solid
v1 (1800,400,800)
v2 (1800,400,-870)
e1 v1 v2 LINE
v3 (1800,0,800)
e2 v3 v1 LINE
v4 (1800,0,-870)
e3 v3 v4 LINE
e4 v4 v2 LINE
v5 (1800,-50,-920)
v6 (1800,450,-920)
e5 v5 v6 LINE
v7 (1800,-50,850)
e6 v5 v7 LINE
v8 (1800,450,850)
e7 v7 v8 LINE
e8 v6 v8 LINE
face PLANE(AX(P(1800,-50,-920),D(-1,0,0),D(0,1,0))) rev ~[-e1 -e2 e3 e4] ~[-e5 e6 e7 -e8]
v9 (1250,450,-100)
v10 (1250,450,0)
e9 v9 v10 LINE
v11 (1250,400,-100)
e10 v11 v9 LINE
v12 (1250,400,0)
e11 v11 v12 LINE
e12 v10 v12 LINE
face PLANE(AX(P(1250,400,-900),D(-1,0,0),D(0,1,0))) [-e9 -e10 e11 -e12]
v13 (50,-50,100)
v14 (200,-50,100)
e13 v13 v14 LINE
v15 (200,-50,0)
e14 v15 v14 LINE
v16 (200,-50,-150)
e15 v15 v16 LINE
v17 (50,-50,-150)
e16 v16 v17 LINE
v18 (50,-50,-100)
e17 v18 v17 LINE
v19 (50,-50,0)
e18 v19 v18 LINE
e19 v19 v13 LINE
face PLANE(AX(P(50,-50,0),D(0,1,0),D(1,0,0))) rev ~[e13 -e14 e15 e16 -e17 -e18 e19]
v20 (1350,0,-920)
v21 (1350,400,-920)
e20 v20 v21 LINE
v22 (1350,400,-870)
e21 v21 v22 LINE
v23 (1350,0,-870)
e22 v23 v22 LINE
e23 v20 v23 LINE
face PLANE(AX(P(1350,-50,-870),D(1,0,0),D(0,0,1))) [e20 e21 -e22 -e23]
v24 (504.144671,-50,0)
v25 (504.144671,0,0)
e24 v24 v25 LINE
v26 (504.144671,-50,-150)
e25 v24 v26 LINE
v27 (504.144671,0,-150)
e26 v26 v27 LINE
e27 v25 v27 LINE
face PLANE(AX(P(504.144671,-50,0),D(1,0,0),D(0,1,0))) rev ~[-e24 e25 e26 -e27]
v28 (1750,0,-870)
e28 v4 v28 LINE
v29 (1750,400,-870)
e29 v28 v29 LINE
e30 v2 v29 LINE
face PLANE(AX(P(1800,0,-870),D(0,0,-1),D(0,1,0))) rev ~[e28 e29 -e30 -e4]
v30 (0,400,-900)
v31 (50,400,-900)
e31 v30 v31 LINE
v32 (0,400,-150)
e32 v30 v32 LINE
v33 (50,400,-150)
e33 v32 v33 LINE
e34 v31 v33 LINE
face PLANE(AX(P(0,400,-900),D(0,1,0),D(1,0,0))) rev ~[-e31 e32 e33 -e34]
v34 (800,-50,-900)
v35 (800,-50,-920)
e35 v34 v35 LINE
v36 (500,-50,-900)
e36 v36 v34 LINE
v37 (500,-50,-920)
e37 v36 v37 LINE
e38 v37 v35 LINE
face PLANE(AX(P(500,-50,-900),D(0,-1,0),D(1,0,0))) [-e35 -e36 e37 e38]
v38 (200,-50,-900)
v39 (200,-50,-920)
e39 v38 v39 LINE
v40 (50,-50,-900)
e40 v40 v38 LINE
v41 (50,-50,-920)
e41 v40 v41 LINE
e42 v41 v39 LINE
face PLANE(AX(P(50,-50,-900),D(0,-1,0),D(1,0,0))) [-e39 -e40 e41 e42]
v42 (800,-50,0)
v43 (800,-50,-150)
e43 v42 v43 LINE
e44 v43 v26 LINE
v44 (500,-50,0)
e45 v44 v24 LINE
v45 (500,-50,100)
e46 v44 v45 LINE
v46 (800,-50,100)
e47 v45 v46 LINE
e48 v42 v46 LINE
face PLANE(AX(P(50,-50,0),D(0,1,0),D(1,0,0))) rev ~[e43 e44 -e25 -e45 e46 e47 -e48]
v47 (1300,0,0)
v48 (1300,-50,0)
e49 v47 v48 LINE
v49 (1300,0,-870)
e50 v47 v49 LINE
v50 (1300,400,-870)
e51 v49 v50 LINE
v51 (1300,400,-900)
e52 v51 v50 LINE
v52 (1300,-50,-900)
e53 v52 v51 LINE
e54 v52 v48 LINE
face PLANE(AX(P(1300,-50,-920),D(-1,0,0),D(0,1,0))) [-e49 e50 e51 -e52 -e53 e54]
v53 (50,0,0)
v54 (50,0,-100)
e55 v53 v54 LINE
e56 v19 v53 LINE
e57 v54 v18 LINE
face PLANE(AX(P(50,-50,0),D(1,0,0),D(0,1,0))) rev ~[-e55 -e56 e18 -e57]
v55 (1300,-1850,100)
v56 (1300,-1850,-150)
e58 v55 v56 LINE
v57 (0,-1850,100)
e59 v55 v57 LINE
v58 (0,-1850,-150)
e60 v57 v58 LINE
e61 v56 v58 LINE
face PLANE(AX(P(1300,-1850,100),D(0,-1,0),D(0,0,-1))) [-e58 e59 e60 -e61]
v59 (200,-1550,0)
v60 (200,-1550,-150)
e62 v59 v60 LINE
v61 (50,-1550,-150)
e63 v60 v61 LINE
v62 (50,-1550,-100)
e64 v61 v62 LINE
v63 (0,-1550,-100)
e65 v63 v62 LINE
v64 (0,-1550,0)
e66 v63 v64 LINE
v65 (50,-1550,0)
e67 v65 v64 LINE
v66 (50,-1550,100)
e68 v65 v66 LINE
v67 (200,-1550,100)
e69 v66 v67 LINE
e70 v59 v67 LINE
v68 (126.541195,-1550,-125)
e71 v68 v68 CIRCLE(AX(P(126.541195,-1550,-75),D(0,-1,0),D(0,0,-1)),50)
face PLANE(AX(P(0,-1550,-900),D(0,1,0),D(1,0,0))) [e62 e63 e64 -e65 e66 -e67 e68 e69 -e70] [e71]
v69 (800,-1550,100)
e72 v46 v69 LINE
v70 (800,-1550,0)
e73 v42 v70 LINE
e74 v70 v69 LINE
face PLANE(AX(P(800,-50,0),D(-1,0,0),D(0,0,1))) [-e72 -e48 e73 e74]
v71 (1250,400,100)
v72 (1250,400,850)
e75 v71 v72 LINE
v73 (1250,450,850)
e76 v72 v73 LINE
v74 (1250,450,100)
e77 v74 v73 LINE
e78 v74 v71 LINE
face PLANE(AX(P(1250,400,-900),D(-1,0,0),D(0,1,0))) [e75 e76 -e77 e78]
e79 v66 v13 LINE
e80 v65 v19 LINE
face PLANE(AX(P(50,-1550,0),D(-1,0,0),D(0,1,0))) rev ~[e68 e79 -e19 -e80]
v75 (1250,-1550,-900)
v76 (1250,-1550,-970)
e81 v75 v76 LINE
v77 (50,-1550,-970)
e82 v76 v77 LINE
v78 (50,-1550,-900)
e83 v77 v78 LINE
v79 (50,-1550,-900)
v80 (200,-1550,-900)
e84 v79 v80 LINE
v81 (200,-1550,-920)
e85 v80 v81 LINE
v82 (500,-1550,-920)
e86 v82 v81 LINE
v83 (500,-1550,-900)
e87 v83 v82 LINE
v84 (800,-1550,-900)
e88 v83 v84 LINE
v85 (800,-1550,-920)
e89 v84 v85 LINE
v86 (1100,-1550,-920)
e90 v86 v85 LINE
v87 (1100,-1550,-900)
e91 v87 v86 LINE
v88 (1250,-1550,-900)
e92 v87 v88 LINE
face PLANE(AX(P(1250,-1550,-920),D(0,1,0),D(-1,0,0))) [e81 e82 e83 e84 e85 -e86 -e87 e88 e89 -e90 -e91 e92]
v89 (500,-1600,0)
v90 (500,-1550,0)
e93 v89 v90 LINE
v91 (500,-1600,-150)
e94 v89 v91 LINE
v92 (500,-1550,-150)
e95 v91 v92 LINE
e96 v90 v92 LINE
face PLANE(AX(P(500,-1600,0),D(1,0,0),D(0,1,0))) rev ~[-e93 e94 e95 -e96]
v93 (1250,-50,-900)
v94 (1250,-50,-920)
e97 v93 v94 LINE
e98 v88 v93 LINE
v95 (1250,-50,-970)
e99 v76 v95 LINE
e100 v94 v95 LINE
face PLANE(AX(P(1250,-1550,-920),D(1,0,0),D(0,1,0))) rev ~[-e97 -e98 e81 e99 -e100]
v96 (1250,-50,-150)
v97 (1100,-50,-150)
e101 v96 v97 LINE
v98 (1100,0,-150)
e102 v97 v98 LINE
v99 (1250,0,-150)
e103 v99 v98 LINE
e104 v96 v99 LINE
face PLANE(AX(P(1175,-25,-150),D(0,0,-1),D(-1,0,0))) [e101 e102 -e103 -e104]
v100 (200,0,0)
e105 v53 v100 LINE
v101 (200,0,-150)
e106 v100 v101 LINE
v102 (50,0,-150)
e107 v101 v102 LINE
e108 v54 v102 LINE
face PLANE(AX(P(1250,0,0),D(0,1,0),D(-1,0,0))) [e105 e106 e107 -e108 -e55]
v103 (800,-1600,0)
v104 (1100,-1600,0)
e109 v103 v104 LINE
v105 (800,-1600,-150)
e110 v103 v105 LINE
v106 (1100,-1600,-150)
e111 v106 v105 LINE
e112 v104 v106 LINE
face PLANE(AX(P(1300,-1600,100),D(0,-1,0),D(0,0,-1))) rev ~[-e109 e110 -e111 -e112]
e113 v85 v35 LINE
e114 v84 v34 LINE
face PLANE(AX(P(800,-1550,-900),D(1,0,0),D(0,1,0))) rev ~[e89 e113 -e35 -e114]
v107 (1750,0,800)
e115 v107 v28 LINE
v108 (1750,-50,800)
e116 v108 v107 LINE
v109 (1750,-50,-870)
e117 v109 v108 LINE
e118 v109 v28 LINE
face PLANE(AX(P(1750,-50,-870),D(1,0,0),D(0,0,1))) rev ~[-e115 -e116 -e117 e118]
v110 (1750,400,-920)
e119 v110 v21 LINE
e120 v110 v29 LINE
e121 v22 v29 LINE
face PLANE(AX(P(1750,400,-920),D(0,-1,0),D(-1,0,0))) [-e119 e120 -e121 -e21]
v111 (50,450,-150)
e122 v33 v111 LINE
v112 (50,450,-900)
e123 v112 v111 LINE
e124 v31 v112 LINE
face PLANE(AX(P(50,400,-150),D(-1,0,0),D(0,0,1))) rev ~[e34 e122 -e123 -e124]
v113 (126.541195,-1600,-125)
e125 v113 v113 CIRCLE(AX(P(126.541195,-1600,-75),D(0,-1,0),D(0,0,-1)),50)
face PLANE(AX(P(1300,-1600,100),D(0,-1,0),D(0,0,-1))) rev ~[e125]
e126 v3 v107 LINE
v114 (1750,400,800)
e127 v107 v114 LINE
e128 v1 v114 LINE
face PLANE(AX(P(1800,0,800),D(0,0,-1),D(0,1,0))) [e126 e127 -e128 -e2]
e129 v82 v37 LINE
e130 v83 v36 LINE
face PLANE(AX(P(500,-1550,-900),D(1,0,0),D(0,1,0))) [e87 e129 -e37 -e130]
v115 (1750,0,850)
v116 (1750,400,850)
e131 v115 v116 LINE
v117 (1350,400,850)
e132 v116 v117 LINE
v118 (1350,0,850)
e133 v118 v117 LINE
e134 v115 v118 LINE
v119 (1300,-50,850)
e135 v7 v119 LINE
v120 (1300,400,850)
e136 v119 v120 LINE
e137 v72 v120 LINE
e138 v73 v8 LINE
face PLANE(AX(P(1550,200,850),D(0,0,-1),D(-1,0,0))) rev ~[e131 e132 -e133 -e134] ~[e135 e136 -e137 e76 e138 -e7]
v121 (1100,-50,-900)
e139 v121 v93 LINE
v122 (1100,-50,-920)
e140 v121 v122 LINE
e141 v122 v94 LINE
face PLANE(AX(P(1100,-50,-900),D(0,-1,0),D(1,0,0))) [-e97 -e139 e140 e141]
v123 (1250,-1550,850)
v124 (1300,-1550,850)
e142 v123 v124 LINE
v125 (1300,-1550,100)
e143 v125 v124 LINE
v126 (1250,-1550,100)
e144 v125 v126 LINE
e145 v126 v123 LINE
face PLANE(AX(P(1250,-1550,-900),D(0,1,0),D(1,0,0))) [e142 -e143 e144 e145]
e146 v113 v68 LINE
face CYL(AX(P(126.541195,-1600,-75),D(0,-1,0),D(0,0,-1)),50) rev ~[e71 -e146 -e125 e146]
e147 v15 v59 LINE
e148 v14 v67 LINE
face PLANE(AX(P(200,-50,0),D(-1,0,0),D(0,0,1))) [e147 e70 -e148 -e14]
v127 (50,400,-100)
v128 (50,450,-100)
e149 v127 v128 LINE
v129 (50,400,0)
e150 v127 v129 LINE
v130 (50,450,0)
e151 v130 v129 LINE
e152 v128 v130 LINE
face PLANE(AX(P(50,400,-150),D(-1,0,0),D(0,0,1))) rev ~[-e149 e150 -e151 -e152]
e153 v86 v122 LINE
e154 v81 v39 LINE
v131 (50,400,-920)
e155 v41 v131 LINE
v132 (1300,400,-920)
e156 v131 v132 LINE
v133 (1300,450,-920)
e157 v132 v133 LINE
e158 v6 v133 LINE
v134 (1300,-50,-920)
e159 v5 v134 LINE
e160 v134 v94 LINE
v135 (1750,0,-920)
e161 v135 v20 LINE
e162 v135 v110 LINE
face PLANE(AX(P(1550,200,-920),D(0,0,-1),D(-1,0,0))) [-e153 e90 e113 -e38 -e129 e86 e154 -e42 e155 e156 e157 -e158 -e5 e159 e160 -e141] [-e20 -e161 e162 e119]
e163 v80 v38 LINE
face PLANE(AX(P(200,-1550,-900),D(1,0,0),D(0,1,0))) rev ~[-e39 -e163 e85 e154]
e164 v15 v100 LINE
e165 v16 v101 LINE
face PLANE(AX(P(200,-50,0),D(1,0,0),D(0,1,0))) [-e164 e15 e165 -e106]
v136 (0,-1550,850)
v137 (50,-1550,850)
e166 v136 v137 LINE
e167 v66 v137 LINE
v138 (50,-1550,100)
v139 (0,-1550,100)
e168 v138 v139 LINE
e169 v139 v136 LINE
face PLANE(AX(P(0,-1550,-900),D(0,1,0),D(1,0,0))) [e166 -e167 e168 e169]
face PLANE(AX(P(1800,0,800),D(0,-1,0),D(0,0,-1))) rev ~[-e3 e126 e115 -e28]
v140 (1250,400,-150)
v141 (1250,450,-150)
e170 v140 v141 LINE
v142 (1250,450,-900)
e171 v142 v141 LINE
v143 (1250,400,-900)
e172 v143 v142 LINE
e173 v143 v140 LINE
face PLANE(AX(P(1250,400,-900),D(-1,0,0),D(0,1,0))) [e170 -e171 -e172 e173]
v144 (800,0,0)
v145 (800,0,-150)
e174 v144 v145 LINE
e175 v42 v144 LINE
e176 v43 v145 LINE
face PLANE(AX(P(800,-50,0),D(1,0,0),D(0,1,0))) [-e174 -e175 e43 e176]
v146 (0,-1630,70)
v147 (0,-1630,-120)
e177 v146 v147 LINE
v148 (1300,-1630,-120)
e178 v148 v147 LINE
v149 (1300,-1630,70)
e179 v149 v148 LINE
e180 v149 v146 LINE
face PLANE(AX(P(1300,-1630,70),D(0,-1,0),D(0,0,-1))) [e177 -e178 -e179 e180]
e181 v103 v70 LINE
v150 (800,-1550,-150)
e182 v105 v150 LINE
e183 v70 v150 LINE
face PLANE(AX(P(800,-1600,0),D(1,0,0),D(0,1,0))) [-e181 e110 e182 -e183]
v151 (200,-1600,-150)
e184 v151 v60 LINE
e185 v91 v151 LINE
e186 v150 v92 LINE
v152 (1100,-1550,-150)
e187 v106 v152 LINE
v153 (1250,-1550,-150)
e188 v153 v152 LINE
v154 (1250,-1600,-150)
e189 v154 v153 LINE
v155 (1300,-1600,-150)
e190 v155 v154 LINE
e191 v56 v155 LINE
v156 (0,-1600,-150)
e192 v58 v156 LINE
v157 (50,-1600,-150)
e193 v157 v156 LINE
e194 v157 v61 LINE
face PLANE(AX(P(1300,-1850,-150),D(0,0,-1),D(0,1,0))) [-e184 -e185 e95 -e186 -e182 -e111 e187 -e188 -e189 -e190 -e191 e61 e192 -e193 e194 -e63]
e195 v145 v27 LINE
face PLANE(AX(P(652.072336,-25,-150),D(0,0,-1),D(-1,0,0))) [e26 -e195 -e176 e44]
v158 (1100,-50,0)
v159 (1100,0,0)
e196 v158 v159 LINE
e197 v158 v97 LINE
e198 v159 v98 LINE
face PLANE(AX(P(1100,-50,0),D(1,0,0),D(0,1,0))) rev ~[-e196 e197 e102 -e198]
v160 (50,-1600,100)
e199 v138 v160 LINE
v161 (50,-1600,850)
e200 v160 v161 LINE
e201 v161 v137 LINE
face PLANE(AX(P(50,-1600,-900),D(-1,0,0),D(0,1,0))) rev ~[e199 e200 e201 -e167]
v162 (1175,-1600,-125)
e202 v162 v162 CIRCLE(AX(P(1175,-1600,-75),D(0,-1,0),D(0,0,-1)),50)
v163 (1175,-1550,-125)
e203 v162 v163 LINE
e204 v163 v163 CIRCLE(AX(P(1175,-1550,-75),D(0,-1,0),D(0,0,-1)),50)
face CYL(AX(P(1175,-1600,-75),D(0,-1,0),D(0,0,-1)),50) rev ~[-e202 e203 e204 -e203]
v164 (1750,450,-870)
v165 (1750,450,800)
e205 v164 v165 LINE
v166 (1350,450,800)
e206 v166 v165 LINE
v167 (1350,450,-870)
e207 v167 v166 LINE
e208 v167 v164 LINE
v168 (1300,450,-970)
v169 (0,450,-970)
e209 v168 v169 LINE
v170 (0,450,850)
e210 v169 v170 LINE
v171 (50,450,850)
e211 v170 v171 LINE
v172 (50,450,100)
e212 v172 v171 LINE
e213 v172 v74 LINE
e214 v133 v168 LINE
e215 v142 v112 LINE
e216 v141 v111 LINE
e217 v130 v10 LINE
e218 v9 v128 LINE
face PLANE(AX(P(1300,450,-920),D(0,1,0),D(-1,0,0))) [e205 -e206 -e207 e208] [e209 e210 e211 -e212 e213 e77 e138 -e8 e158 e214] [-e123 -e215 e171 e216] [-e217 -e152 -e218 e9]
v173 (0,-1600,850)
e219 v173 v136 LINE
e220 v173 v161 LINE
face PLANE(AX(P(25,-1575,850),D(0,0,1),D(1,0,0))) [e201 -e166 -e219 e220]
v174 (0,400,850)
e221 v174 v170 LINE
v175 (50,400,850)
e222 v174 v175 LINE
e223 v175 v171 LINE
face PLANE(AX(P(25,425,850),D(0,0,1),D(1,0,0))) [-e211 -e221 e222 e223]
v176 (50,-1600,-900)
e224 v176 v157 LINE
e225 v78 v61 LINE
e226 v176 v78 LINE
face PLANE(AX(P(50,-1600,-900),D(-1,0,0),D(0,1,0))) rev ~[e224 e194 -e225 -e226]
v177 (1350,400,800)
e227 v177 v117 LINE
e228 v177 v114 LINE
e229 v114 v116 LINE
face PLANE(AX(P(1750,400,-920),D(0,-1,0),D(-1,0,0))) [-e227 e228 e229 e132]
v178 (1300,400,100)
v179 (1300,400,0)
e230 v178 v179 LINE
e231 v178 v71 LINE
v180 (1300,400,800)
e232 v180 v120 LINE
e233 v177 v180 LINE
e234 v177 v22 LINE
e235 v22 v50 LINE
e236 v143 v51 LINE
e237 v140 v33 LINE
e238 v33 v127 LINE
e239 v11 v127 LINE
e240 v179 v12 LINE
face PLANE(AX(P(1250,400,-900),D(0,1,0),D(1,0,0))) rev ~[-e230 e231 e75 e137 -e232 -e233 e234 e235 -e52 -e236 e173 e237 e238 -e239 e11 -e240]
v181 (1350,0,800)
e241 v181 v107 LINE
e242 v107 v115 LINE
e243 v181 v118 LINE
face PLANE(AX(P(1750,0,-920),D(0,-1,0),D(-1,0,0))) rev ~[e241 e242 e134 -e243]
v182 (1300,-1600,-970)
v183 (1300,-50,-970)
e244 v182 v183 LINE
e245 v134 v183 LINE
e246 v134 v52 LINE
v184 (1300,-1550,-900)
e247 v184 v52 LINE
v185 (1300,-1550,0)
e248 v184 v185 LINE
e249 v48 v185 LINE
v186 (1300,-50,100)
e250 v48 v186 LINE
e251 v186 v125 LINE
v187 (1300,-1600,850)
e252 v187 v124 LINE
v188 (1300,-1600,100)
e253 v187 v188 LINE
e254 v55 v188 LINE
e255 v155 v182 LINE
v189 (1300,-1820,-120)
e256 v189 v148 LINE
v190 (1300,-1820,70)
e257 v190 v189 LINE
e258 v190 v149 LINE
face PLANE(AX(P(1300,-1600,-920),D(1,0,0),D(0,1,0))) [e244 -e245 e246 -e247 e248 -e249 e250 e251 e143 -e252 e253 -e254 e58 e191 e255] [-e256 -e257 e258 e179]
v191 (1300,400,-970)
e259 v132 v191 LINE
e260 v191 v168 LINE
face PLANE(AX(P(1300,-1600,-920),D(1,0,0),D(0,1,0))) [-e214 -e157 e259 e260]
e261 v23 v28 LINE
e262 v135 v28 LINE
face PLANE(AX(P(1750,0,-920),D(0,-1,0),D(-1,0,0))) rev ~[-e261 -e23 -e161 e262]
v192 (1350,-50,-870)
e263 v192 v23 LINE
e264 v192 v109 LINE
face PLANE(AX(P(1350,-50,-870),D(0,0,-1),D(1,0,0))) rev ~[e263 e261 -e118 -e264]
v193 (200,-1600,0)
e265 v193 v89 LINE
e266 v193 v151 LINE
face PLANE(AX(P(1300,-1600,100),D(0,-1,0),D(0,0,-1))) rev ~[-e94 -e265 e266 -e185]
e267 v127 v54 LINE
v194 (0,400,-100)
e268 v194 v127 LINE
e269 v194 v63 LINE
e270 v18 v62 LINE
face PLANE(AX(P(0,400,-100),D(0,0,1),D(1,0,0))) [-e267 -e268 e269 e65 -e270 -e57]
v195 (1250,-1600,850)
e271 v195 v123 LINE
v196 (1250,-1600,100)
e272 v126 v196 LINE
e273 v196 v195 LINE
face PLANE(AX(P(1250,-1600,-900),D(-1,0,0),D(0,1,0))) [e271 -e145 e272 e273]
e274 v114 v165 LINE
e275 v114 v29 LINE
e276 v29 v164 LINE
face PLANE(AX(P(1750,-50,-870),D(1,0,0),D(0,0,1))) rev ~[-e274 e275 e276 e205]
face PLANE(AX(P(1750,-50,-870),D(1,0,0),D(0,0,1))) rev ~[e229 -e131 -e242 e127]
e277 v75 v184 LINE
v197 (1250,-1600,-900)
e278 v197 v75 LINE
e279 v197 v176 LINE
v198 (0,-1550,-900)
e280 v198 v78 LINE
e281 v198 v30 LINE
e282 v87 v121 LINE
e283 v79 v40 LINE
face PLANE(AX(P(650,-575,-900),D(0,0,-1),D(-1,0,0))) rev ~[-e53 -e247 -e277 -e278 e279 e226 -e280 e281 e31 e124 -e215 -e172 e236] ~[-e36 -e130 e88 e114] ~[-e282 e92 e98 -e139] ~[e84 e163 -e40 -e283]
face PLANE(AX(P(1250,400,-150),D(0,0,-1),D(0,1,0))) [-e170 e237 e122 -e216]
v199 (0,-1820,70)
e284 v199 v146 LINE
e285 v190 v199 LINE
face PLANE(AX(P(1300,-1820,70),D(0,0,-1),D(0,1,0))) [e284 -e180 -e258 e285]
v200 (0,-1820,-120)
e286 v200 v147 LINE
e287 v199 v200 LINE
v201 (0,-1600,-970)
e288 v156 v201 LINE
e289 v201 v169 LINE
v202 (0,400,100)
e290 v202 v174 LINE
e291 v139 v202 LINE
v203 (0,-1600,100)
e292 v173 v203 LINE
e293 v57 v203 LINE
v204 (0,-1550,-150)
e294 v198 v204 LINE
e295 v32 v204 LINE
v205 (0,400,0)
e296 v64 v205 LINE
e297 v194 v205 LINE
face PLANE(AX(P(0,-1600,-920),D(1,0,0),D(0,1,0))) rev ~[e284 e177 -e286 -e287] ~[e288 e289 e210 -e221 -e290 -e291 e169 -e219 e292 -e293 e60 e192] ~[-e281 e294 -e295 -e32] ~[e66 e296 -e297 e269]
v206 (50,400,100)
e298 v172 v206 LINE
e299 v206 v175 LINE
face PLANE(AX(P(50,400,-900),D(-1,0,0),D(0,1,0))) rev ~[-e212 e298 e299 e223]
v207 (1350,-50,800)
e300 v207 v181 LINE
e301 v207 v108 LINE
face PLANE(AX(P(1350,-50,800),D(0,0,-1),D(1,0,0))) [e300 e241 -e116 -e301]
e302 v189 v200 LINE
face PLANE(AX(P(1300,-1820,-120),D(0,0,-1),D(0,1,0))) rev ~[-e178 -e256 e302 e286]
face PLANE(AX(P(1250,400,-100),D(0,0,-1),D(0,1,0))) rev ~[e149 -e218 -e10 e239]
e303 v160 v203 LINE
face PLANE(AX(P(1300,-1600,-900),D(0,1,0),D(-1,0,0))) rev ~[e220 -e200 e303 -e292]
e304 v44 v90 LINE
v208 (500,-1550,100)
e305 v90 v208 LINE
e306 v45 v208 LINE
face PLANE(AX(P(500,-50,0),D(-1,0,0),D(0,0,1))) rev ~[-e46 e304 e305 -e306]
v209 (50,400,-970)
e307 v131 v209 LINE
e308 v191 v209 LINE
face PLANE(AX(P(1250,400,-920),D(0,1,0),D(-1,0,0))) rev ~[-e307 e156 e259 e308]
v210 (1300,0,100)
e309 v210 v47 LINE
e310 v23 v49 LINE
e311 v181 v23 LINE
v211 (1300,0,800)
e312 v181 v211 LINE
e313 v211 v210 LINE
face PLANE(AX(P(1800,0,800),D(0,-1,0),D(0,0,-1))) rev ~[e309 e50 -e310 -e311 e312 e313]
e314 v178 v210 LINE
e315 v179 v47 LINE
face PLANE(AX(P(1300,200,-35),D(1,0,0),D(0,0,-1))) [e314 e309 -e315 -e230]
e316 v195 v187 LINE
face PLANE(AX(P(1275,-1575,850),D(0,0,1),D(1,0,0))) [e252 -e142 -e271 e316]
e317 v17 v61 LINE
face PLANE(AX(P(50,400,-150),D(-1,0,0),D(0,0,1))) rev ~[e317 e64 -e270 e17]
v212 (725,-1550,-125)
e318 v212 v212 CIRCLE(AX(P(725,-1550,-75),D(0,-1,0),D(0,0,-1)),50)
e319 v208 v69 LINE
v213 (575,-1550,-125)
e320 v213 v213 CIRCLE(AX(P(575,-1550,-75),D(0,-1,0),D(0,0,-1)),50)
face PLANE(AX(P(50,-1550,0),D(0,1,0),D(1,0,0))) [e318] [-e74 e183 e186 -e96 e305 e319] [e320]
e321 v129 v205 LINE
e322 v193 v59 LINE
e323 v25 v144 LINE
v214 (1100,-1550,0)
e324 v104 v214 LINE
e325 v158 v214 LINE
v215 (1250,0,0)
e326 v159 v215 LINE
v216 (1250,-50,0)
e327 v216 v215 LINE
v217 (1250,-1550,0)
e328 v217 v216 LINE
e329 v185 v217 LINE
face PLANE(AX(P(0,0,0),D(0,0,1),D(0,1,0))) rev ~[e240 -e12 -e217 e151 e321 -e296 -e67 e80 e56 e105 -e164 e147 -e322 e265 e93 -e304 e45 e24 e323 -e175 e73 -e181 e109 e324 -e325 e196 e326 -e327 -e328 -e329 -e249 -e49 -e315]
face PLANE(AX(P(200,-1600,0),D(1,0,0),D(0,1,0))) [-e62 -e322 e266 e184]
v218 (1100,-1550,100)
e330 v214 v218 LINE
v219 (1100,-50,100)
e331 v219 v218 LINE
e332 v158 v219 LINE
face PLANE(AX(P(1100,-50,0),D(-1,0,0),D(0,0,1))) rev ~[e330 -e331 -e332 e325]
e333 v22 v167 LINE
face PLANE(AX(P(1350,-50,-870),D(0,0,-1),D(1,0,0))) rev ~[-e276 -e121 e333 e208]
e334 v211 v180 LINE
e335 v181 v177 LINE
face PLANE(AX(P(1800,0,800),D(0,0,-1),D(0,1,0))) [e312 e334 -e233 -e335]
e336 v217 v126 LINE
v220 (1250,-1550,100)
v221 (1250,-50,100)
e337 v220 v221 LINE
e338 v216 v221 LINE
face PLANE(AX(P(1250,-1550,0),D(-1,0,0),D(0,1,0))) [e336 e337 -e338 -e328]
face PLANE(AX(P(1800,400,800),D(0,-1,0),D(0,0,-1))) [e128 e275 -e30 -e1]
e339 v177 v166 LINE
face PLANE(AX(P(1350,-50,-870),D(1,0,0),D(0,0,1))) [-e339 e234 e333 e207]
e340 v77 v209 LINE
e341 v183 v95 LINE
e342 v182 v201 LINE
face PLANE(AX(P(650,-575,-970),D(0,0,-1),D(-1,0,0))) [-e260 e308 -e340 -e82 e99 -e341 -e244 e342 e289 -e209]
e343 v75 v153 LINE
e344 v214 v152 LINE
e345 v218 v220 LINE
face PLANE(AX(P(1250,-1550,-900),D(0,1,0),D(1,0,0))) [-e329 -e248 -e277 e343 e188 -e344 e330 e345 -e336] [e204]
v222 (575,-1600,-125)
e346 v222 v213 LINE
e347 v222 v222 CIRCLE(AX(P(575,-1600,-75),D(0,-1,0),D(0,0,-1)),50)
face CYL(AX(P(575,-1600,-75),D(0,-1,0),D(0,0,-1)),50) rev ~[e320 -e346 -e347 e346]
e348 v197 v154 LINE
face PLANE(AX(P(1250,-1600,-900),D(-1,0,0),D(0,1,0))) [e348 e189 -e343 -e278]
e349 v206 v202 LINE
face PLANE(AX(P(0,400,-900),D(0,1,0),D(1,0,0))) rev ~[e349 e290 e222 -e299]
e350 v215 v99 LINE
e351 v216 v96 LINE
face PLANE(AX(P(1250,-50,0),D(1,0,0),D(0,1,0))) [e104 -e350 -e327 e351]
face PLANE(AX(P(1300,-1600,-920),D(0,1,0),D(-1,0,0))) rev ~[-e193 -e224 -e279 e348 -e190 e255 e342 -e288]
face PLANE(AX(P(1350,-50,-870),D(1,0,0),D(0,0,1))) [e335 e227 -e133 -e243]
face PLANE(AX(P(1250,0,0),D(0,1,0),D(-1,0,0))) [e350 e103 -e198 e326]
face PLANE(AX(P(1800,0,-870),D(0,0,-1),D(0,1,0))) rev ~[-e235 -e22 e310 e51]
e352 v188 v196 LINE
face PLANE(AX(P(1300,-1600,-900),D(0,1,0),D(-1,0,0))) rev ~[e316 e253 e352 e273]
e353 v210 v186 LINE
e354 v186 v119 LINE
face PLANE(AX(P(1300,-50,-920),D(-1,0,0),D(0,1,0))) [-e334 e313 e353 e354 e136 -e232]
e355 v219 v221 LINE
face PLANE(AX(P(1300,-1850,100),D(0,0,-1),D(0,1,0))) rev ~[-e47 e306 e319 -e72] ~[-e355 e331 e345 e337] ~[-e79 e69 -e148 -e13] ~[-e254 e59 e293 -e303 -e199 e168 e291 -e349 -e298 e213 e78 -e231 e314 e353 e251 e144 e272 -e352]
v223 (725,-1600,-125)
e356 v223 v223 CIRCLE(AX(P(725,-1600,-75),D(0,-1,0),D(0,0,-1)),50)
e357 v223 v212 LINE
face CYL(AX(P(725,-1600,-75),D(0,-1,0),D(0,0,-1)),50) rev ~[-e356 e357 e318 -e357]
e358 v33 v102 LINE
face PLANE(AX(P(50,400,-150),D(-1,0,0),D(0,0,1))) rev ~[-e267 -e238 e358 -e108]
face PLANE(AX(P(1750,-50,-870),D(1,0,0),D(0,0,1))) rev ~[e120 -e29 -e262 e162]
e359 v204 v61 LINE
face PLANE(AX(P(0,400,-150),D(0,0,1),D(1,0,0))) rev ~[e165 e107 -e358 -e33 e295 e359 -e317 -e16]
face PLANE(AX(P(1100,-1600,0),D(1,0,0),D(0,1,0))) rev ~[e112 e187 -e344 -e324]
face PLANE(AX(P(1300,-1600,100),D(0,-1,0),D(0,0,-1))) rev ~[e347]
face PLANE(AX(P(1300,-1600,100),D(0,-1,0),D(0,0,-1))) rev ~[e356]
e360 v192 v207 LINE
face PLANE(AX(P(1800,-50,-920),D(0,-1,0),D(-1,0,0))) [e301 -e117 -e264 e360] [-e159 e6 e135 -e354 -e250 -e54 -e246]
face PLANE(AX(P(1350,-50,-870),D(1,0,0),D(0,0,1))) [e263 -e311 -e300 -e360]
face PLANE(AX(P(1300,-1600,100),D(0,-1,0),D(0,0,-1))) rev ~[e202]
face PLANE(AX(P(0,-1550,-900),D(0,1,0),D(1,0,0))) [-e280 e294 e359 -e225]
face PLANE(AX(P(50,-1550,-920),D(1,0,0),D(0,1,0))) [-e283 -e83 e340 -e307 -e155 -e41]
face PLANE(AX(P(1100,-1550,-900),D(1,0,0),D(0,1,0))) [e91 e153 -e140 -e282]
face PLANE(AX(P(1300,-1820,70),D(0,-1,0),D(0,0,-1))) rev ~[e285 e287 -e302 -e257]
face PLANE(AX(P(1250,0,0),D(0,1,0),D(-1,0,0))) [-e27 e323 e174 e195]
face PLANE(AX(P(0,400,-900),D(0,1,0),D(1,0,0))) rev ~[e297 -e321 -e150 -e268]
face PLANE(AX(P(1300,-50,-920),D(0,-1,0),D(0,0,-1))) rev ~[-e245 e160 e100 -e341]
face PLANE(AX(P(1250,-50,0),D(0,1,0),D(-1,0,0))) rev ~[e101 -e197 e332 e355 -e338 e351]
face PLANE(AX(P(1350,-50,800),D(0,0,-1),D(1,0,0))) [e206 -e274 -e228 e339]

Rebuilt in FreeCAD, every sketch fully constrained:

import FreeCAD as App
import Part
import Sketcher
Q = App.Units.Quantity


def add_polygon(sketch, points):
    """Adds a closed chain of lines whose ends are joined by coincident constraints."""
    first, n = sketch.GeometryCount, len(points)
    for a, b in zip(points, points[1:] + points[:1]):
        sketch.addGeometry(Part.LineSegment(App.Vector(*a, 0), App.Vector(*b, 0)), False)
    for i in range(n):
        sketch.addConstraint(Sketcher.Constraint("Coincident", first + i, 2, first + (i + 1) % n, 1))

doc = App.newDocument("Part")
body = doc.addObject("PartDesign::Body", "Body")

# Sketch on XY plane
sketch1 = body.newObject("Sketcher::SketchObject", "Sketch")
sketch1.AttachmentSupport = (doc.getObject("XY_Plane"), [""])
sketch1.MapMode = "FlatFace"
add_polygon(sketch1, [(0, 0), (0, -1600), (1300, -1600), (1300, 0)])  # lines 0-3
add_polygon(sketch1, [(1250, -1550), (50, -1550), (50, -50), (1250, -50)])  # lines 4-7
sketch1.addConstraint([
    Sketcher.Constraint("Vertical", 0),
    Sketcher.Constraint("Horizontal", 1),
    Sketcher.Constraint("Vertical", 2),
    Sketcher.Constraint("Horizontal", 3),
    Sketcher.Constraint("Horizontal", 4),
    Sketcher.Constraint("Vertical", 5),
    Sketcher.Constraint("Horizontal", 6),
    Sketcher.Constraint("Vertical", 7),
    Sketcher.Constraint("Coincident", 3, 2, -1, 1),
    Sketcher.Constraint("DistanceX", 1, 1, 1, 2, Q("1300 mm")),
    Sketcher.Constraint("DistanceX", 4, 2, 4, 1, Q("1200 mm")),
    Sketcher.Constraint("DistanceY", 0, 2, 0, 1, Q("1600 mm")),
    Sketcher.Constraint("DistanceY", 5, 1, 5, 2, Q("1500 mm")),
    Sketcher.Constraint("DistanceX", -1, 1, 4, 2, Q("50 mm")),
    Sketcher.Constraint("DistanceY", 4, 2, -1, 1, Q("1550 mm")),
])
pad1 = body.newObject("PartDesign::Pad", "Pad")
pad1.Profile = sketch1
pad1.Length = 100

# Sketch on XZ plane
sketch2 = body.newObject("Sketcher::SketchObject", "Sketch001")
sketch2.AttachmentSupport = (doc.getObject("XZ_Plane"), [""])
sketch2.MapMode = "FlatFace"
sketch2.AttachmentOffset = App.Placement(App.Vector(0, 0, 50), App.Rotation())
add_polygon(sketch2, [(200, 100), (200, 0), (500, 0), (500, 100)])  # lines 0-3
add_polygon(sketch2, [(800, 100), (800, 0), (1100, 0), (1100, 100)])  # lines 4-7
sketch2.addConstraint([
    Sketcher.Constraint("Vertical", 0),
    Sketcher.Constraint("Horizontal", 1),
    Sketcher.Constraint("Vertical", 2),
    Sketcher.Constraint("Horizontal", 3),
    Sketcher.Constraint("Vertical", 4),
    Sketcher.Constraint("Horizontal", 5),
    Sketcher.Constraint("Vertical", 6),
    Sketcher.Constraint("Horizontal", 7),
    Sketcher.Constraint("PointOnObject", 0, 2, -1),
    Sketcher.Constraint("PointOnObject", 4, 2, -1),
    Sketcher.Constraint("Horizontal", 3, 2, 6, 2),
    Sketcher.Constraint("Equal", 3, 5),
    Sketcher.Constraint("DistanceX", 1, 1, 1, 2, Q("300 mm")),
    Sketcher.Constraint("DistanceY", 0, 2, 0, 1, Q("100 mm")),
    Sketcher.Constraint("DistanceX", -1, 1, 0, 2, Q("200 mm")),
    Sketcher.Constraint("DistanceX", -1, 1, 4, 2, Q("800 mm")),
])
pad2 = body.newObject("PartDesign::Pad", "Pad001")
pad2.Profile = sketch2
pad2.Length = 1500

# Sketch on XY plane
sketch3 = body.newObject("Sketcher::SketchObject", "Sketch002")
sketch3.AttachmentSupport = (doc.getObject("XY_Plane"), [""])
sketch3.MapMode = "FlatFace"
add_polygon(sketch3, [(1250, 0), (1250, -50), (1100, -50), (1100, 0)])  # lines 0-3
add_polygon(sketch3, [(800, 0), (800, -50), (504, -50), (504, 0)])  # lines 4-7
add_polygon(sketch3, [(200, 0), (200, -50), (50, -50), (50, 0)])  # lines 8-11
add_polygon(sketch3, [(1250, -1550), (1250, -1600), (1100, -1600), (1100, -1550)])  # lines 12-15
add_polygon(sketch3, [(800, -1550), (800, -1600), (500, -1600), (500, -1550)])  # lines 16-19
add_polygon(sketch3, [(200, -1550), (200, -1600), (50, -1600), (50, -1550)])  # lines 20-23
sketch3.addConstraint([
    Sketcher.Constraint("Vertical", 0),
    Sketcher.Constraint("Horizontal", 1),
    Sketcher.Constraint("Vertical", 2),
    Sketcher.Constraint("Horizontal", 3),
    Sketcher.Constraint("Vertical", 4),
    Sketcher.Constraint("Horizontal", 5),
    Sketcher.Constraint("Vertical", 6),
    Sketcher.Constraint("Horizontal", 7),
    Sketcher.Constraint("Vertical", 8),
    Sketcher.Constraint("Horizontal", 9),
    Sketcher.Constraint("Vertical", 10),
    Sketcher.Constraint("Horizontal", 11),
    Sketcher.Constraint("Vertical", 12),
    Sketcher.Constraint("Horizontal", 13),
    Sketcher.Constraint("Vertical", 14),
    Sketcher.Constraint("Horizontal", 15),
    Sketcher.Constraint("Vertical", 16),
    Sketcher.Constraint("Horizontal", 17),
    Sketcher.Constraint("Vertical", 18),
    Sketcher.Constraint("Horizontal", 19),
    Sketcher.Constraint("Vertical", 20),
    Sketcher.Constraint("Horizontal", 21),
    Sketcher.Constraint("Vertical", 22),
    Sketcher.Constraint("Horizontal", 23),
    Sketcher.Constraint("PointOnObject", 2, 2, -1),
    Sketcher.Constraint("PointOnObject", 6, 2, -1),
    Sketcher.Constraint("PointOnObject", 10, 2, -1),
    Sketcher.Constraint("Horizontal", 1, 2, 4, 2),
    Sketcher.Constraint("Horizontal", 5, 2, 8, 2),
    Sketcher.Constraint("Horizontal", 13, 2, 16, 2),
    Sketcher.Constraint("Horizontal", 15, 2, 18, 2),
    Sketcher.Constraint("Horizontal", 17, 2, 20, 2),
    Sketcher.Constraint("Horizontal", 19, 2, 22, 2),
    Sketcher.Constraint("Vertical", 3, 2, 12, 2),
    Sketcher.Constraint("Vertical", 2, 2, 13, 2),
    Sketcher.Constraint("Vertical", 7, 2, 16, 2),
    Sketcher.Constraint("Vertical", 11, 2, 20, 2),
    Sketcher.Constraint("Vertical", 10, 2, 21, 2),
    Sketcher.Constraint("Equal", 3, 9),
    Sketcher.Constraint("Equal", 10, 12),
    Sketcher.Constraint("DistanceX", 1, 2, 1, 1, Q("150 mm")),
    Sketcher.Constraint("DistanceX", 17, 2, 17, 1, Q("300 mm")),
    Sketcher.Constraint("DistanceY", 0, 2, 0, 1, Q("50 mm")),
    Sketcher.Constraint("DistanceX", -1, 1, 0, 2, Q("1250 mm")),
    Sketcher.Constraint("DistanceX", -1, 1, 4, 2, Q("800 mm")),
    Sketcher.Constraint("DistanceX", -1, 1, 8, 2, Q("200 mm")),
    Sketcher.Constraint("DistanceY", 12, 2, -1, 1, Q("1600 mm")),
    Sketcher.Constraint("DistanceX", 5, 2, 5, 1, Q("295.855329 mm")),
])
pad3 = body.newObject("PartDesign::Pad", "Pad002")
pad3.Profile = sketch3
pad3.Length = 150
pad3.Reversed = True

# Sketch on XZ plane
sketch4 = body.newObject("Sketcher::SketchObject", "Sketch003")
sketch4.AttachmentSupport = (doc.getObject("XZ_Plane"), [""])
sketch4.MapMode = "FlatFace"
sketch4.AttachmentOffset = App.Placement(App.Vector(0, 0, 1600), App.Rotation())
sketch4.addGeometry([
    Part.Circle(App.Vector(1175, -75, 0), App.Vector(0, 0, 1), 50),
    Part.Circle(App.Vector(725, -75, 0), App.Vector(0, 0, 1), 50),
    Part.Circle(App.Vector(575, -75, 0), App.Vector(0, 0, 1), 50),
    Part.Circle(App.Vector(127, -75, 0), App.Vector(0, 0, 1), 50),
], False)
sketch4.addConstraint([
    Sketcher.Constraint("Equal", 0, 1),
    Sketcher.Constraint("Equal", 1, 2),
    Sketcher.Constraint("Equal", 2, 3),
    Sketcher.Constraint("Horizontal", 0, 3, 1, 3),
    Sketcher.Constraint("Horizontal", 1, 3, 2, 3),
    Sketcher.Constraint("Horizontal", 2, 3, 3, 3),
    Sketcher.Constraint("Diameter", 0, Q("100 mm")),
    Sketcher.Constraint("DistanceX", -1, 1, 0, 3, Q("1175 mm")),
    Sketcher.Constraint("DistanceY", 0, 3, -1, 1, Q("75 mm")),
    Sketcher.Constraint("DistanceX", -1, 1, 1, 3, Q("725 mm")),
    Sketcher.Constraint("DistanceX", -1, 1, 2, 3, Q("575 mm")),
    Sketcher.Constraint("DistanceX", -1, 1, 3, 3, Q("126.541195 mm")),
])
pocket1 = body.newObject("PartDesign::Pocket", "Pocket")
pocket1.Profile = sketch4
pocket1.Length = 50

# Sketch on YZ plane
sketch5 = body.newObject("Sketcher::SketchObject", "Sketch004")
sketch5.AttachmentSupport = (doc.getObject("YZ_Plane"), [""])
sketch5.MapMode = "FlatFace"
add_polygon(sketch5, [(450, 0), (0, 0), (0, 100), (450, 100)])  # lines 0-3
sketch5.addConstraint([
    Sketcher.Constraint("Horizontal", 0),
    Sketcher.Constraint("Vertical", 1),
    Sketcher.Constraint("Horizontal", 2),
    Sketcher.Constraint("Vertical", 3),
    Sketcher.Constraint("Coincident", 0, 2, -1, 1),
    Sketcher.Constraint("DistanceX", 0, 2, 0, 1, Q("450 mm")),
    Sketcher.Constraint("DistanceY", 1, 1, 1, 2, Q("100 mm")),
])
pad4 = body.newObject("PartDesign::Pad", "Pad003")
pad4.Profile = sketch5
pad4.Length = 1300

# Sketch on XY plane
sketch6 = body.newObject("Sketcher::SketchObject", "Sketch005")
sketch6.AttachmentSupport = (doc.getObject("XY_Plane"), [""])
sketch6.MapMode = "FlatFace"
sketch6.AttachmentOffset = App.Placement(App.Vector(0, 0, 100), App.Rotation())
add_polygon(sketch6, [(0, 450), (0, 400), (50, 400), (50, 450)])  # lines 0-3
add_polygon(sketch6, [(1250, 450), (1250, 400), (1300, 400), (1300, 450)])  # lines 4-7
add_polygon(sketch6, [(1250, -1550), (1250, -1600), (1300, -1600), (1300, -1550)])  # lines 8-11
add_polygon(sketch6, [(0, -1550), (0, -1600), (50, -1600), (50, -1550)])  # lines 12-15
sketch6.addConstraint([
    Sketcher.Constraint("Vertical", 0),
    Sketcher.Constraint("Horizontal", 1),
    Sketcher.Constraint("Vertical", 2),
    Sketcher.Constraint("Horizontal", 3),
    Sketcher.Constraint("Vertical", 4),
    Sketcher.Constraint("Horizontal", 5),
    Sketcher.Constraint("Vertical", 6),
    Sketcher.Constraint("Horizontal", 7),
    Sketcher.Constraint("Vertical", 8),
    Sketcher.Constraint("Horizontal", 9),
    Sketcher.Constraint("Vertical", 10),
    Sketcher.Constraint("Horizontal", 11),
    Sketcher.Constraint("Vertical", 12),
    Sketcher.Constraint("Horizontal", 13),
    Sketcher.Constraint("Vertical", 14),
    Sketcher.Constraint("Horizontal", 15),
    Sketcher.Constraint("PointOnObject", 0, 2, -2),
    Sketcher.Constraint("PointOnObject", 12, 2, -2),
    Sketcher.Constraint("Horizontal", 1, 2, 4, 2),
    Sketcher.Constraint("Horizontal", 3, 2, 6, 2),
    Sketcher.Constraint("Horizontal", 9, 2, 12, 2),
    Sketcher.Constraint("Horizontal", 11, 2, 14, 2),
    Sketcher.Constraint("Vertical", 7, 2, 8, 2),
    Sketcher.Constraint("Vertical", 6, 2, 9, 2),
    Sketcher.Constraint("Vertical", 2, 2, 13, 2),
    Sketcher.Constraint("Equal", 3, 5),
    Sketcher.Constraint("Equal", 15, 0),
    Sketcher.Constraint("Equal", 6, 8),
    Sketcher.Constraint("DistanceX", 1, 1, 1, 2, Q("50 mm")),
    Sketcher.Constraint("DistanceY", -1, 1, 0, 2, Q("400 mm")),
    Sketcher.Constraint("DistanceX", -1, 1, 4, 2, Q("1250 mm")),
    Sketcher.Constraint("DistanceY", 8, 2, -1, 1, Q("1600 mm")),
])
pad5 = body.newObject("PartDesign::Pad", "Pad004")
pad5.Profile = sketch6
pad5.Type = "TwoLengths"
pad5.Length = 750
pad5.Length2 = 1000

# Sketch on XY plane
sketch7 = body.newObject("Sketcher::SketchObject", "Sketch006")
sketch7.AttachmentSupport = (doc.getObject("XY_Plane"), [""])
sketch7.MapMode = "FlatFace"
sketch7.AttachmentOffset = App.Placement(App.Vector(0, 0, -900), App.Rotation())
add_polygon(sketch7, [(1300, 450), (1300, -1600), (0, -1600), (0, 450)])  # lines 0-3
sketch7.addConstraint([
    Sketcher.Constraint("Vertical", 0),
    Sketcher.Constraint("Horizontal", 1),
    Sketcher.Constraint("Vertical", 2),
    Sketcher.Constraint("Horizontal", 3),
    Sketcher.Constraint("PointOnObject", 1, 2, -2),
    Sketcher.Constraint("DistanceX", 1, 2, 1, 1, Q("1300 mm")),
    Sketcher.Constraint("DistanceY", 0, 2, 0, 1, Q("2050 mm")),
    Sketcher.Constraint("DistanceY", 0, 2, -1, 1, Q("1600 mm")),
])
pad6 = body.newObject("PartDesign::Pad", "Pad005")
pad6.Profile = sketch7
pad6.Length = 20
pad6.Reversed = True

# Sketch on XY plane
sketch8 = body.newObject("Sketcher::SketchObject", "Sketch007")
sketch8.AttachmentSupport = (doc.getObject("XY_Plane"), [""])
sketch8.MapMode = "FlatFace"
sketch8.AttachmentOffset = App.Placement(App.Vector(0, 0, -900), App.Rotation())
add_polygon(sketch8, [(1100, -50), (1100, -1550), (1250, -1550), (1250, -50)])  # lines 0-3
add_polygon(sketch8, [(500, -50), (500, -1550), (800, -1550), (800, -50)])  # lines 4-7
add_polygon(sketch8, [(50, -50), (50, -1550), (200, -1550), (200, -50)])  # lines 8-11
sketch8.addConstraint([
    Sketcher.Constraint("Vertical", 0),
    Sketcher.Constraint("Horizontal", 1),
    Sketcher.Constraint("Vertical", 2),
    Sketcher.Constraint("Horizontal", 3),
    Sketcher.Constraint("Vertical", 4),
    Sketcher.Constraint("Horizontal", 5),
    Sketcher.Constraint("Vertical", 6),
    Sketcher.Constraint("Horizontal", 7),
    Sketcher.Constraint("Vertical", 8),
    Sketcher.Constraint("Horizontal", 9),
    Sketcher.Constraint("Vertical", 10),
    Sketcher.Constraint("Horizontal", 11),
    Sketcher.Constraint("Horizontal", 1, 2, 4, 2),
    Sketcher.Constraint("Horizontal", 3, 2, 6, 2),
    Sketcher.Constraint("Horizontal", 5, 2, 8, 2),
    Sketcher.Constraint("Horizontal", 7, 2, 10, 2),
    Sketcher.Constraint("Equal", 3, 9),
    Sketcher.Constraint("DistanceX", 1, 1, 1, 2, Q("150 mm")),
    Sketcher.Constraint("DistanceX", 5, 1, 5, 2, Q("300 mm")),
    Sketcher.Constraint("DistanceY", 0, 2, 0, 1, Q("1500 mm")),
    Sketcher.Constraint("DistanceX", -1, 1, 0, 2, Q("1100 mm")),
    Sketcher.Constraint("DistanceY", 0, 2, -1, 1, Q("1550 mm")),
    Sketcher.Constraint("DistanceX", -1, 1, 4, 2, Q("500 mm")),
    Sketcher.Constraint("DistanceX", -1, 1, 8, 2, Q("50 mm")),
])
pocket2 = body.newObject("PartDesign::Pocket", "Pocket001")
pocket2.Profile = sketch8
pocket2.Length = 20

# Sketch on XZ plane
sketch9 = body.newObject("Sketcher::SketchObject", "Sketch008")
sketch9.AttachmentSupport = (doc.getObject("XZ_Plane"), [""])
sketch9.MapMode = "FlatFace"
sketch9.AttachmentOffset = App.Placement(App.Vector(0, 0, -400), App.Rotation())
add_polygon(sketch9, [(0, -100), (0, -150), (50, -150), (50, -100)])  # lines 0-3
sketch9.addConstraint([
    Sketcher.Constraint("Vertical", 0),
    Sketcher.Constraint("Horizontal", 1),
    Sketcher.Constraint("Vertical", 2),
    Sketcher.Constraint("Horizontal", 3),
    Sketcher.Constraint("PointOnObject", 0, 2, -2),
    Sketcher.Constraint("Equal", 3, 0),
    Sketcher.Constraint("DistanceX", 1, 1, 1, 2, Q("50 mm")),
    Sketcher.Constraint("DistanceY", 0, 2, -1, 1, Q("150 mm")),
])
pad7 = body.newObject("PartDesign::Pad", "Pad006")
pad7.Profile = sketch9
pad7.Length = 1958

# Sketch on YZ plane
sketch10 = body.newObject("Sketcher::SketchObject", "Sketch009")
sketch10.AttachmentSupport = (doc.getObject("YZ_Plane"), [""])
sketch10.MapMode = "FlatFace"
sketch10.AttachmentOffset = App.Placement(App.Vector(0, 0, 1250), App.Rotation())
add_polygon(sketch10, [(450, -150), (400, -150), (400, -100), (450, -100)])  # lines 0-3
sketch10.addConstraint([
    Sketcher.Constraint("Horizontal", 0),
    Sketcher.Constraint("Vertical", 1),
    Sketcher.Constraint("Horizontal", 2),
    Sketcher.Constraint("Vertical", 3),
    Sketcher.Constraint("Equal", 2, 1),
    Sketcher.Constraint("DistanceX", 0, 2, 0, 1, Q("50 mm")),
    Sketcher.Constraint("DistanceX", -1, 1, 0, 2, Q("400 mm")),
    Sketcher.Constraint("DistanceY", 0, 2, -1, 1, Q("150 mm")),
])
pad8 = body.newObject("PartDesign::Pad", "Pad007")
pad8.Profile = sketch10
pad8.Length = 1200
pad8.Reversed = True

# Sketch on XY plane
sketch11 = body.newObject("Sketcher::SketchObject", "Sketch010")
sketch11.AttachmentSupport = (doc.getObject("XY_Plane"), [""])
sketch11.MapMode = "FlatFace"
sketch11.AttachmentOffset = App.Placement(App.Vector(0, 0, -920), App.Rotation())
add_polygon(sketch11, [(1800, 450), (1800, -50), (1300, -50), (1300, 450)])  # lines 0-3
add_polygon(sketch11, [(1350, 0), (1750, 0), (1750, 400), (1350, 400)])  # lines 4-7
sketch11.addConstraint([
    Sketcher.Constraint("Vertical", 0),
    Sketcher.Constraint("Horizontal", 1),
    Sketcher.Constraint("Vertical", 2),
    Sketcher.Constraint("Horizontal", 3),
    Sketcher.Constraint("Horizontal", 4),
    Sketcher.Constraint("Vertical", 5),
    Sketcher.Constraint("Horizontal", 6),
    Sketcher.Constraint("Vertical", 7),
    Sketcher.Constraint("PointOnObject", 4, 2, -1),
    Sketcher.Constraint("Equal", 3, 0),
    Sketcher.Constraint("Equal", 6, 5),
    Sketcher.Constraint("DistanceX", 1, 2, 1, 1, Q("500 mm")),
    Sketcher.Constraint("DistanceX", 4, 1, 4, 2, Q("400 mm")),
    Sketcher.Constraint("DistanceX", -1, 1, 0, 2, Q("1800 mm")),
    Sketcher.Constraint("DistanceY", 0, 2, -1, 1, Q("50 mm")),
    Sketcher.Constraint("DistanceX", -1, 1, 4, 2, Q("1750 mm")),
])
pad9 = body.newObject("PartDesign::Pad", "Pad008")
pad9.Profile = sketch11
pad9.Length = 1770

# Sketch on XZ plane
sketch12 = body.newObject("Sketcher::SketchObject", "Sketch011")
sketch12.AttachmentSupport = (doc.getObject("XZ_Plane"), [""])
sketch12.MapMode = "FlatFace"
sketch12.AttachmentOffset = App.Placement(App.Vector(0, 0, 50), App.Rotation())
add_polygon(sketch12, [(1350, 800), (1350, -870), (1750, -870), (1750, 800)])  # lines 0-3
sketch12.addConstraint([
    Sketcher.Constraint("Vertical", 0),
    Sketcher.Constraint("Horizontal", 1),
    Sketcher.Constraint("Vertical", 2),
    Sketcher.Constraint("Horizontal", 3),
    Sketcher.Constraint("DistanceX", 1, 1, 1, 2, Q("400 mm")),
    Sketcher.Constraint("DistanceY", 0, 2, 0, 1, Q("1670 mm")),
    Sketcher.Constraint("DistanceX", -1, 1, 0, 2, Q("1350 mm")),
    Sketcher.Constraint("DistanceY", 0, 2, -1, 1, Q("870 mm")),
])
pocket3 = body.newObject("PartDesign::Pocket", "Pocket002")
pocket3.Profile = sketch12
pocket3.Length = 500

# Sketch on YZ plane
sketch13 = body.newObject("Sketcher::SketchObject", "Sketch012")
sketch13.AttachmentSupport = (doc.getObject("YZ_Plane"), [""])
sketch13.MapMode = "FlatFace"
sketch13.AttachmentOffset = App.Placement(App.Vector(0, 0, 1800), App.Rotation())
add_polygon(sketch13, [(400, 800), (0, 800), (0, -870), (400, -870)])  # lines 0-3
sketch13.addConstraint([
    Sketcher.Constraint("Horizontal", 0),
    Sketcher.Constraint("Vertical", 1),
    Sketcher.Constraint("Horizontal", 2),
    Sketcher.Constraint("Vertical", 3),
    Sketcher.Constraint("PointOnObject", 0, 2, -2),
    Sketcher.Constraint("DistanceX", 0, 2, 0, 1, Q("400 mm")),
    Sketcher.Constraint("DistanceY", 1, 2, 1, 1, Q("1670 mm")),
    Sketcher.Constraint("DistanceY", -1, 1, 0, 2, Q("800 mm")),
])
pocket4 = body.newObject("PartDesign::Pocket", "Pocket003")
pocket4.Profile = sketch13
pocket4.Length = 500

# Sketch on YZ plane
sketch14 = body.newObject("Sketcher::SketchObject", "Sketch013")
sketch14.AttachmentSupport = (doc.getObject("YZ_Plane"), [""])
sketch14.MapMode = "FlatFace"
sketch14.AttachmentOffset = App.Placement(App.Vector(0, 0, 1300), App.Rotation())
add_polygon(sketch14, [(-1600, 100), (-1850, 100), (-1850, -150), (-1600, -150)])  # lines 0-3
add_polygon(sketch14, [(-1820, -120), (-1820, 70), (-1630, 70), (-1630, -120)])  # lines 4-7
sketch14.addConstraint([
    Sketcher.Constraint("Horizontal", 0),
    Sketcher.Constraint("Vertical", 1),
    Sketcher.Constraint("Horizontal", 2),
    Sketcher.Constraint("Vertical", 3),
    Sketcher.Constraint("Vertical", 4),
    Sketcher.Constraint("Horizontal", 5),
    Sketcher.Constraint("Vertical", 6),
    Sketcher.Constraint("Horizontal", 7),
    Sketcher.Constraint("Equal", 2, 1),
    Sketcher.Constraint("Equal", 7, 4),
    Sketcher.Constraint("DistanceX", 0, 2, 0, 1, Q("250 mm")),
    Sketcher.Constraint("DistanceX", 5, 1, 5, 2, Q("190 mm")),
    Sketcher.Constraint("DistanceX", 0, 2, -1, 1, Q("1850 mm")),
    Sketcher.Constraint("DistanceY", -1, 1, 0, 2, Q("100 mm")),
    Sketcher.Constraint("DistanceX", 4, 2, -1, 1, Q("1820 mm")),
    Sketcher.Constraint("DistanceY", -1, 1, 4, 2, Q("70 mm")),
])
pad10 = body.newObject("PartDesign::Pad", "Pad009")
pad10.Profile = sketch14
pad10.Length = 1300
pad10.Reversed = True

# Sketch on XY plane
sketch15 = body.newObject("Sketcher::SketchObject", "Sketch014")
sketch15.AttachmentSupport = (doc.getObject("XY_Plane"), [""])
sketch15.MapMode = "FlatFace"
sketch15.AttachmentOffset = App.Placement(App.Vector(0, 0, -920), App.Rotation())
add_polygon(sketch15, [(1300, 450), (1300, -1600), (0, -1600), (0, 450)])  # lines 0-3
add_polygon(sketch15, [(50, -1550), (1250, -1550), (1250, 400), (50, 400)])  # lines 4-7
sketch15.addConstraint([
    Sketcher.Constraint("Vertical", 0),
    Sketcher.Constraint("Horizontal", 1),
    Sketcher.Constraint("Vertical", 2),
    Sketcher.Constraint("Horizontal", 3),
    Sketcher.Constraint("Horizontal", 4),
    Sketcher.Constraint("Vertical", 5),
    Sketcher.Constraint("Horizontal", 6),
    Sketcher.Constraint("Vertical", 7),
    Sketcher.Constraint("PointOnObject", 1, 2, -2),
    Sketcher.Constraint("DistanceX", 1, 2, 1, 1, Q("1300 mm")),
    Sketcher.Constraint("DistanceX", 4, 1, 4, 2, Q("1200 mm")),
    Sketcher.Constraint("DistanceY", 0, 2, 0, 1, Q("2050 mm")),
    Sketcher.Constraint("DistanceY", 5, 1, 5, 2, Q("1950 mm")),
    Sketcher.Constraint("DistanceY", 0, 2, -1, 1, Q("1600 mm")),
    Sketcher.Constraint("DistanceX", -1, 1, 4, 2, Q("1250 mm")),
    Sketcher.Constraint("DistanceY", 4, 2, -1, 1, Q("1550 mm")),
])
pad11 = body.newObject("PartDesign::Pad", "Pad010")
pad11.Profile = sketch15
pad11.Length = 50
pad11.Reversed = True

# Sketch on YZ plane
sketch16 = body.newObject("Sketcher::SketchObject", "Sketch015")
sketch16.AttachmentSupport = (doc.getObject("YZ_Plane"), [""])
sketch16.MapMode = "FlatFace"
sketch16.AttachmentOffset = App.Placement(App.Vector(0, 0, 1300), App.Rotation())
add_polygon(sketch16, [(400, -920), (-50, -920), (-50, -970), (400, -970)])  # lines 0-3
sketch16.addConstraint([
    Sketcher.Constraint("Horizontal", 0),
    Sketcher.Constraint("Vertical", 1),
    Sketcher.Constraint("Horizontal", 2),
    Sketcher.Constraint("Vertical", 3),
    Sketcher.Constraint("DistanceX", 0, 2, 0, 1, Q("450 mm")),
    Sketcher.Constraint("DistanceY", 1, 2, 1, 1, Q("50 mm")),
    Sketcher.Constraint("DistanceX", 0, 2, -1, 1, Q("50 mm")),
    Sketcher.Constraint("DistanceY", 0, 2, -1, 1, Q("920 mm")),
])
pocket5 = body.newObject("PartDesign::Pocket", "Pocket004")
pocket5.Profile = sketch16
pocket5.Length = 50

doc.recompute()
